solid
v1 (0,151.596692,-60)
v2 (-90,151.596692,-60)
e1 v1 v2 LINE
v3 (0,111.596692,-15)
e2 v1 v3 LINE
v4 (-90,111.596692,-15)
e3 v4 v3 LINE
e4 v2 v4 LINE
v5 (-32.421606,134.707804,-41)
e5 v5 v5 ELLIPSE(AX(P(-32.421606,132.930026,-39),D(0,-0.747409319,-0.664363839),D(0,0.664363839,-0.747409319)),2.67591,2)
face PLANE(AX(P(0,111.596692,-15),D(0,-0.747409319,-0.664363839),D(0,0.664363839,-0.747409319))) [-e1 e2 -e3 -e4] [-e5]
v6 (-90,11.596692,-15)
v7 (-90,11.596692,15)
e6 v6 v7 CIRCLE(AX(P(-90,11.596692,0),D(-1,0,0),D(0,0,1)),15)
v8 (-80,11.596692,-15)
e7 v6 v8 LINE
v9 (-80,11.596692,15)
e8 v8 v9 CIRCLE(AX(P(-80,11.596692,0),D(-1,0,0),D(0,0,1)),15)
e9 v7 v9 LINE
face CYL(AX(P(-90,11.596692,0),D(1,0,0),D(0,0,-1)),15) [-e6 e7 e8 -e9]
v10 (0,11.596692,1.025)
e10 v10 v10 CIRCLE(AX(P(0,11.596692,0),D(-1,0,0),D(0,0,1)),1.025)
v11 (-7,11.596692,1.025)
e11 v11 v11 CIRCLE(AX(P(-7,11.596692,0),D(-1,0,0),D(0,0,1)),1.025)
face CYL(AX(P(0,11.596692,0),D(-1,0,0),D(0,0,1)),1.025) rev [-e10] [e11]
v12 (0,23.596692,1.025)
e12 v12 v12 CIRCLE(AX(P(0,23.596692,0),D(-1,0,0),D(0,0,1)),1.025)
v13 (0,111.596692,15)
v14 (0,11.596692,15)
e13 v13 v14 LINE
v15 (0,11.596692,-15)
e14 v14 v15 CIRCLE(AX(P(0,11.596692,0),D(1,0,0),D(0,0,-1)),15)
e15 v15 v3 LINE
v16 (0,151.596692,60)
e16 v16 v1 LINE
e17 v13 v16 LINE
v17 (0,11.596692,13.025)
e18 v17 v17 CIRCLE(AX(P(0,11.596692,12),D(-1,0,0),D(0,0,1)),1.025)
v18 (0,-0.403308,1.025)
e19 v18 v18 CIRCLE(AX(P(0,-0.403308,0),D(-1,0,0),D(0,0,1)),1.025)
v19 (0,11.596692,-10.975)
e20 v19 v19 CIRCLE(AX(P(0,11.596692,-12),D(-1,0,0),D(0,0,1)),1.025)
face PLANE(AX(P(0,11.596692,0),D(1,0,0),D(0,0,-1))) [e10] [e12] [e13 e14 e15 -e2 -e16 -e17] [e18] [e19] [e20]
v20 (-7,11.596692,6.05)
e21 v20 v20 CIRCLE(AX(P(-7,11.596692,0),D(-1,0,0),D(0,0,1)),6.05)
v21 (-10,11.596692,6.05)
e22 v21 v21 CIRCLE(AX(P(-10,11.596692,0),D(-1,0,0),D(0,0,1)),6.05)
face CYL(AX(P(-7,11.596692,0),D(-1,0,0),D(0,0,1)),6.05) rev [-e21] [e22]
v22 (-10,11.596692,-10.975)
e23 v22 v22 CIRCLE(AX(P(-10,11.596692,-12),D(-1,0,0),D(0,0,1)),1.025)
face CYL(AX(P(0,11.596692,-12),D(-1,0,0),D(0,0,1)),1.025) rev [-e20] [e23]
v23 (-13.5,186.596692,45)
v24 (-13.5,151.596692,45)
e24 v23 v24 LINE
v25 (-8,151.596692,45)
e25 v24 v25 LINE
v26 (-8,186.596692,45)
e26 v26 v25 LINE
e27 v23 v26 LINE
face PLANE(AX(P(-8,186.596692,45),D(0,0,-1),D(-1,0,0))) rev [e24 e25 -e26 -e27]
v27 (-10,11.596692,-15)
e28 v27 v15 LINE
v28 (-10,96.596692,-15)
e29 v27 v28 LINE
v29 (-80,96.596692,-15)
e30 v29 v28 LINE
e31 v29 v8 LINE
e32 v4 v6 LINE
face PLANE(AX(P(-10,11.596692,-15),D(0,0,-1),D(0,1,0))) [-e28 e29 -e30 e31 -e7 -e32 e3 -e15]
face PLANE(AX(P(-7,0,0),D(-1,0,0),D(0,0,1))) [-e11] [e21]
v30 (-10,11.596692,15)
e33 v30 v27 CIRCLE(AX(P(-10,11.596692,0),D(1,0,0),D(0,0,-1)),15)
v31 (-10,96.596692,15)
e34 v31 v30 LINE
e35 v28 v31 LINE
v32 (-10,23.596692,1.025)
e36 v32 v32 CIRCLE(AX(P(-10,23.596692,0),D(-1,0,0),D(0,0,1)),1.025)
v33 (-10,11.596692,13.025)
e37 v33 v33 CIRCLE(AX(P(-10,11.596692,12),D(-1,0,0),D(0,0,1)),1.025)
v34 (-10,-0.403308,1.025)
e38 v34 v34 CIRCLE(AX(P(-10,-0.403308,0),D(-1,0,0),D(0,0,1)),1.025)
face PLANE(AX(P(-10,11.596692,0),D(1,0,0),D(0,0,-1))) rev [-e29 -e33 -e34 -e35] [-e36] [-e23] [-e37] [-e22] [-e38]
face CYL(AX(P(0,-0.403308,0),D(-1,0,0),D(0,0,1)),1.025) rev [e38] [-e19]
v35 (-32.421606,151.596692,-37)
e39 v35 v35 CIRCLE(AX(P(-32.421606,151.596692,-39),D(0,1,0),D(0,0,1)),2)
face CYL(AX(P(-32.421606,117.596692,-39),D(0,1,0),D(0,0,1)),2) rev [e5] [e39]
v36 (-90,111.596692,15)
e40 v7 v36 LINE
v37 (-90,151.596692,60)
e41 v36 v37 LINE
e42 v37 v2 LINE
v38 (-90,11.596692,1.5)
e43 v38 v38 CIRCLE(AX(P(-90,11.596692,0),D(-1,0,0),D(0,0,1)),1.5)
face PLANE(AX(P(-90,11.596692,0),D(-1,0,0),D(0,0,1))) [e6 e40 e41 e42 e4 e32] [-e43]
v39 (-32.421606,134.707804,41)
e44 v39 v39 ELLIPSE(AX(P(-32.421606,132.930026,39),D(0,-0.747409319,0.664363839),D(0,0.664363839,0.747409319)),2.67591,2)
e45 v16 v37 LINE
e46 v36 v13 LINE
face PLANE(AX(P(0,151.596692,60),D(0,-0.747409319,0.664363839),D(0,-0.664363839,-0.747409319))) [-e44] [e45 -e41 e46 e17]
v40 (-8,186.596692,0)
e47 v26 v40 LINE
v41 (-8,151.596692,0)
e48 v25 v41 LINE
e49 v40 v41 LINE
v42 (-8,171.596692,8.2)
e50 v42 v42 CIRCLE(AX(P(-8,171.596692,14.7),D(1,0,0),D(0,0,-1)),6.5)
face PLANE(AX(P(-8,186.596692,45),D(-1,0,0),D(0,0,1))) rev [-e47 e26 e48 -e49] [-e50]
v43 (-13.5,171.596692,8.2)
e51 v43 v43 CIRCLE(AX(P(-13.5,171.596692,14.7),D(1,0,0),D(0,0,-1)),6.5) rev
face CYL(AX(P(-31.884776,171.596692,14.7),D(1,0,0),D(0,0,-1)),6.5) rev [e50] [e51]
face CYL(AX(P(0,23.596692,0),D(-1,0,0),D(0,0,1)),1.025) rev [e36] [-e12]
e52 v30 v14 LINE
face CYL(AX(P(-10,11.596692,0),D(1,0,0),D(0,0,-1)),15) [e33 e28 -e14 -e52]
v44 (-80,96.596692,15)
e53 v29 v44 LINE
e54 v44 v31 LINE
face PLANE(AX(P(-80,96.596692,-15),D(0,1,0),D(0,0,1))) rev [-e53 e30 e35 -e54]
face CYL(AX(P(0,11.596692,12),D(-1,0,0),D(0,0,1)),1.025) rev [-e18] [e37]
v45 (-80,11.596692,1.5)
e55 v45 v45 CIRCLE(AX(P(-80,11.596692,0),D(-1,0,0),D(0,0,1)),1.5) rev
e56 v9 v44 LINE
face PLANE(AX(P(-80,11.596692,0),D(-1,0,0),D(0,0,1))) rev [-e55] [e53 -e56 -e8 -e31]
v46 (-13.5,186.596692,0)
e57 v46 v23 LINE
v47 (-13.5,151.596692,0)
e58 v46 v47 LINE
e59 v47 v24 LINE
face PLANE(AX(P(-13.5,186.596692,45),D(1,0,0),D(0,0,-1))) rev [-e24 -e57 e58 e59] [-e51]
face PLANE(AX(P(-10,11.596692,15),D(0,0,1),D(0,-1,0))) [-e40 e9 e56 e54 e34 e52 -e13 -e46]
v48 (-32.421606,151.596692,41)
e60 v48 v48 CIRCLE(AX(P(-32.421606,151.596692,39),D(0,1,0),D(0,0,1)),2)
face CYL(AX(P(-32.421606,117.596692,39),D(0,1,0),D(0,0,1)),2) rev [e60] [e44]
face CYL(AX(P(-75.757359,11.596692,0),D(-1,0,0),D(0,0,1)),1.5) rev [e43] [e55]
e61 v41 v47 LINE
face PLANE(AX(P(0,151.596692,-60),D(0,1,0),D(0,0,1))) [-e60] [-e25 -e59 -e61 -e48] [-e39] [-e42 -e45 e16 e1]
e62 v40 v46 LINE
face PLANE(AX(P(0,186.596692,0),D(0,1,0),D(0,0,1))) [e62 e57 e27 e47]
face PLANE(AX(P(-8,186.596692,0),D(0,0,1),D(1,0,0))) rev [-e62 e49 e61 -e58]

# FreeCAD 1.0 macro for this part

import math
import FreeCAD as App
import Part
import Sketcher
from FreeCAD import Vector

doc = App.newDocument("Part")
body = doc.addObject("PartDesign::Body", "Body")

# Sketch on YZ plane
sketch1 = body.newObject("Sketcher::SketchObject", "Sketch")
sketch1.AttachmentSupport = (doc.getObject("YZ_Plane"), [""])
sketch1.MapMode = "FlatFace"
sketch1.addGeometry([
    Part.LineSegment(Vector(12, -15, 0), Vector(112, -15, 0)),
    Part.LineSegment(Vector(112, -15, 0), Vector(112, 15, 0)),
    Part.LineSegment(Vector(112, 15, 0), Vector(12, 15, 0)),
    Part.ArcOfCircle(Part.Circle(Vector(12, 0, 0), Vector(0, 0, 1), 15), math.radians(90), math.radians(270)),
], False)
sketch1.addConstraint([
    Sketcher.Constraint("Coincident", 0, 2, 1, 1),
    Sketcher.Constraint("Coincident", 1, 2, 2, 1),
    Sketcher.Constraint("Tangent", 2, 2, 3, 1),
    Sketcher.Constraint("Tangent", 3, 2, 0, 1),
    Sketcher.Constraint("Horizontal", 0),
    Sketcher.Constraint("Vertical", 1),
    Sketcher.Constraint("Horizontal", 2),
    Sketcher.Constraint("PointOnObject", 3, 3, -1),
    Sketcher.Constraint("Radius", 3, 15.0),
    Sketcher.Constraint("DistanceX", 0, 1, 0, 2, 100.0),
    Sketcher.Constraint("DistanceX", -1, 1, 3, 3, 11.596692),
])
pad1 = body.newObject("PartDesign::Pad", "Pad")
pad1.Profile = sketch1
pad1.Length = 10
pad1.Reversed = True

# Sketch on YZ plane
sketch2 = body.newObject("Sketcher::SketchObject", "Sketch001")
sketch2.AttachmentSupport = (doc.getObject("YZ_Plane"), [""])
sketch2.MapMode = "FlatFace"
sketch2.AttachmentOffset = App.Placement(Vector(0, 0, -10), App.Rotation())
sketch2.addGeometry([
    Part.LineSegment(Vector(112, -15, 0), Vector(97, -15, 0)),
    Part.LineSegment(Vector(97, -15, 0), Vector(97, 15, 0)),
    Part.LineSegment(Vector(97, 15, 0), Vector(112, 15, 0)),
    Part.LineSegment(Vector(112, 15, 0), Vector(112, -15, 0)),
], False)
sketch2.addConstraint([
    Sketcher.Constraint("Coincident", 0, 2, 1, 1),
    Sketcher.Constraint("Coincident", 1, 2, 2, 1),
    Sketcher.Constraint("Coincident", 2, 2, 3, 1),
    Sketcher.Constraint("Coincident", 3, 2, 0, 1),
    Sketcher.Constraint("Horizontal", 0),
    Sketcher.Constraint("Vertical", 1),
    Sketcher.Constraint("Horizontal", 2),
    Sketcher.Constraint("Vertical", 3),
    Sketcher.Constraint("DistanceX", 0, 2, 0, 1, 15.0),
    Sketcher.Constraint("DistanceY", 1, 1, 1, 2, 30.0),
    Sketcher.Constraint("DistanceY", 0, 2, -1, 1, 15.0),
    Sketcher.Constraint("DistanceX", -1, 1, 0, 2, 96.596692),
])
pad2 = body.newObject("PartDesign::Pad", "Pad001")
pad2.Profile = sketch2
pad2.Length = 70
pad2.Reversed = True

# Sketch on YZ plane
sketch3 = body.newObject("Sketcher::SketchObject", "Sketch002")
sketch3.AttachmentSupport = (doc.getObject("YZ_Plane"), [""])
sketch3.MapMode = "FlatFace"
sketch3.AttachmentOffset = App.Placement(Vector(0, 0, -80), App.Rotation())
sketch3.addGeometry([
    Part.LineSegment(Vector(112, 15, 0), Vector(112, -15, 0)),
    Part.LineSegment(Vector(112, -15, 0), Vector(12, -15, 0)),
    Part.ArcOfCircle(Part.Circle(Vector(12, 0, 0), Vector(0, 0, 1), 15), math.radians(90), math.radians(270)),
    Part.LineSegment(Vector(12, 15, 0), Vector(112, 15, 0)),
], False)
sketch3.addConstraint([
    Sketcher.Constraint("Coincident", 0, 2, 1, 1),
    Sketcher.Constraint("Tangent", 1, 2, 2, 2),
    Sketcher.Constraint("Tangent", 2, 1, 3, 1),
    Sketcher.Constraint("Coincident", 3, 2, 0, 1),
    Sketcher.Constraint("Vertical", 0),
    Sketcher.Constraint("Horizontal", 1),
    Sketcher.Constraint("Horizontal", 3),
    Sketcher.Constraint("PointOnObject", 2, 3, -1),
    Sketcher.Constraint("Radius", 2, 15.0),
    Sketcher.Constraint("DistanceX", 1, 2, 1, 1, 100.0),
    Sketcher.Constraint("DistanceX", -1, 1, 2, 3, 11.596692),
])
pad3 = body.newObject("PartDesign::Pad", "Pad002")
pad3.Profile = sketch3
pad3.Length = 10
pad3.Reversed = True

# Sketch on YZ plane
sketch4 = body.newObject("Sketcher::SketchObject", "Sketch003")
sketch4.AttachmentSupport = (doc.getObject("YZ_Plane"), [""])
sketch4.MapMode = "FlatFace"
sketch4.AttachmentOffset = App.Placement(Vector(0, 0, -10), App.Rotation())
sketch4.addGeometry(Part.Circle(Vector(12, 0, 0), Vector(0, 0, 1), 6), False)
sketch4.addConstraint([
    Sketcher.Constraint("PointOnObject", 0, 3, -1),
    Sketcher.Constraint("Diameter", 0, 12.1),
    Sketcher.Constraint("DistanceX", -1, 1, 0, 3, 11.596692),
])
pocket1 = body.newObject("PartDesign::Pocket", "Pocket")
pocket1.Profile = sketch4
pocket1.Length = 3
pocket1.Reversed = True

# Sketch on YZ plane
sketch5 = body.newObject("Sketcher::SketchObject", "Sketch004")
sketch5.AttachmentSupport = (doc.getObject("YZ_Plane"), [""])
sketch5.MapMode = "FlatFace"
sketch5.AttachmentOffset = App.Placement(Vector(0, 0, -10), App.Rotation())
sketch5.addGeometry([
    Part.Circle(Vector(23.6, 0, 0), Vector(0, 0, 1), 1),  # 0
    Part.Circle(Vector(11.6, 12, 0), Vector(0, 0, 1), 1),  # 1
    Part.Circle(Vector(-0.4, 0, 0), Vector(0, 0, 1), 1),  # 2
    Part.Circle(Vector(11.6, -12, 0), Vector(0, 0, 1), 1),  # 3
    Part.Circle(Vector(11.6, 0, 0), Vector(0, 0, 1), 1),  # 4
], False)
sketch5.addConstraint([
    Sketcher.Constraint("Equal", 0, 1),
    Sketcher.Constraint("Equal", 1, 2),
    Sketcher.Constraint("Equal", 2, 3),
    Sketcher.Constraint("Equal", 3, 4),
    Sketcher.Constraint("Symmetric", 1, 3, 3, 3, -1),
    Sketcher.Constraint("PointOnObject", 0, 3, -1),
    Sketcher.Constraint("PointOnObject", 2, 3, -1),
    Sketcher.Constraint("PointOnObject", 4, 3, -1),
    Sketcher.Constraint("Vertical", 3, 3, 4, 3),
    Sketcher.Constraint("Diameter", 0, 2.05),
    Sketcher.Constraint("DistanceY", -1, 1, 1, 3, 12.0),
    Sketcher.Constraint("DistanceX", 1, 3, 0, 3, 12.0),
    Sketcher.Constraint("DistanceX", 2, 3, 1, 3, 12.0),
    Sketcher.Constraint("DistanceX", -1, 1, 0, 3, 23.596692),
])
pocket2 = body.newObject("PartDesign::Pocket", "Pocket001")
pocket2.Profile = sketch5
pocket2.Type = "ThroughAll"
pocket2.Reversed = True

# Sketch on YZ plane
sketch6 = body.newObject("Sketcher::SketchObject", "Sketch005")
sketch6.AttachmentSupport = (doc.getObject("YZ_Plane"), [""])
sketch6.MapMode = "FlatFace"
sketch6.AttachmentOffset = App.Placement(Vector(0, 0, -90), App.Rotation())
sketch6.addGeometry(Part.Circle(Vector(11.6, 0, 0), Vector(0, 0, 1), 1.5), False)
sketch6.addConstraint([
    Sketcher.Constraint("PointOnObject", 0, 3, -1),
    Sketcher.Constraint("Diameter", 0, 3.0),
    Sketcher.Constraint("DistanceX", -1, 1, 0, 3, 11.596692),
])
pocket3 = body.newObject("PartDesign::Pocket", "Pocket002")
pocket3.Profile = sketch6
pocket3.Length = 10
pocket3.Reversed = True

# Sketch on YZ plane
sketch7 = body.newObject("Sketcher::SketchObject", "Sketch006")
sketch7.AttachmentSupport = (doc.getObject("YZ_Plane"), [""])
sketch7.MapMode = "FlatFace"
sketch7.AttachmentOffset = App.Placement(Vector(0, 0, -90), App.Rotation())
sketch7.addGeometry([
    Part.LineSegment(Vector(152, -60, 0), Vector(112, -15, 0)),
    Part.LineSegment(Vector(112, -15, 0), Vector(112, 15, 0)),
    Part.LineSegment(Vector(112, 15, 0), Vector(152, 60, 0)),
    Part.LineSegment(Vector(152, 60, 0), Vector(152, -60, 0)),
], False)
sketch7.addConstraint([
    Sketcher.Constraint("Coincident", 0, 2, 1, 1),
    Sketcher.Constraint("Coincident", 1, 2, 2, 1),
    Sketcher.Constraint("Coincident", 2, 2, 3, 1),
    Sketcher.Constraint("Coincident", 3, 2, 0, 1),
    Sketcher.Constraint("Vertical", 1),
    Sketcher.Constraint("Vertical", 3),
    Sketcher.Constraint("Equal", 0, 2),
    Sketcher.Constraint("DistanceY", 1, 1, 1, 2, 30.0),
    Sketcher.Constraint("DistanceY", 3, 2, 3, 1, 120.0),
    Sketcher.Constraint("DistanceY", 0, 2, -1, 1, 15.0),
    Sketcher.Constraint("DistanceX", 1, 2, 2, 2, 40.0),
    Sketcher.Constraint("DistanceX", -1, 1, 0, 2, 111.596692),
])
pad4 = body.newObject("PartDesign::Pad", "Pad003")
pad4.Profile = sketch7
pad4.Length = 90

# Sketch on XZ plane
sketch8 = body.newObject("Sketcher::SketchObject", "Sketch007")
sketch8.AttachmentSupport = (doc.getObject("XZ_Plane"), [""])
sketch8.MapMode = "FlatFace"
sketch8.AttachmentOffset = App.Placement(Vector(0, 0, -151.596692), App.Rotation())
sketch8.addGeometry([
    Part.LineSegment(Vector(-14, 0, 0), Vector(-14, 45, 0)),
    Part.LineSegment(Vector(-14, 45, 0), Vector(-8, 45, 0)),
    Part.LineSegment(Vector(-8, 45, 0), Vector(-8, 0, 0)),
    Part.LineSegment(Vector(-8, 0, 0), Vector(-14, 0, 0)),
], False)
sketch8.addConstraint([
    Sketcher.Constraint("Coincident", 0, 2, 1, 1),
    Sketcher.Constraint("Coincident", 1, 2, 2, 1),
    Sketcher.Constraint("Coincident", 2, 2, 3, 1),
    Sketcher.Constraint("Coincident", 3, 2, 0, 1),
    Sketcher.Constraint("Vertical", 0),
    Sketcher.Constraint("Horizontal", 1),
    Sketcher.Constraint("Vertical", 2),
    Sketcher.Constraint("Horizontal", 3),
    Sketcher.Constraint("PointOnObject", 2, 2, -1),
    Sketcher.Constraint("DistanceY", 0, 1, 0, 2, 45.0),
    Sketcher.Constraint("DistanceX", 1, 1, 1, 2, 5.5),
    Sketcher.Constraint("DistanceX", 1, 2, -1, 1, 8.0),
])
pad5 = body.newObject("PartDesign::Pad", "Pad004")
pad5.Profile = sketch8
pad5.Length = 35
pad5.Reversed = True

# Sketch on YZ plane
sketch9 = body.newObject("Sketcher::SketchObject", "Sketch008")
sketch9.AttachmentSupport = (doc.getObject("YZ_Plane"), [""])
sketch9.MapMode = "FlatFace"
sketch9.AttachmentOffset = App.Placement(Vector(0, 0, -8), App.Rotation())
sketch9.addGeometry(Part.Circle(Vector(172, 15, 0), Vector(0, 0, 1), 6), False)
sketch9.addConstraint([
    Sketcher.Constraint("Diameter", 0, 13.0),
    Sketcher.Constraint("DistanceY", -1, 1, 0, 3, 14.7),
    Sketcher.Constraint("DistanceX", -1, 1, 0, 3, 171.596692),
])
pocket4 = body.newObject("PartDesign::Pocket", "Pocket003")
pocket4.Profile = sketch9
pocket4.Length = 5.5

# Sketch on XZ plane
sketch10 = body.newObject("Sketcher::SketchObject", "Sketch009")
sketch10.AttachmentSupport = (doc.getObject("XZ_Plane"), [""])
sketch10.MapMode = "FlatFace"
sketch10.AttachmentOffset = App.Placement(Vector(0, 0, -151.596692), App.Rotation())
sketch10.addGeometry([
    Part.Circle(Vector(-32.4, -39, 0), Vector(0, 0, 1), 2),
    Part.Circle(Vector(-32.4, 39, 0), Vector(0, 0, 1), 2),
], False)
sketch10.addConstraint([
    Sketcher.Constraint("Equal", 0, 1),
    Sketcher.Constraint("Symmetric", 0, 3, 1, 3, -1),
    Sketcher.Constraint("Diameter", 0, 4.0),
    Sketcher.Constraint("DistanceY", 0, 3, -1, 1, 39.0),
    Sketcher.Constraint("DistanceX", 0, 3, -1, 1, 32.421606),
])
pocket5 = body.newObject("PartDesign::Pocket", "Pocket004")
pocket5.Profile = sketch10
pocket5.Length = 34
pocket5.Reversed = True

doc.recompute()
